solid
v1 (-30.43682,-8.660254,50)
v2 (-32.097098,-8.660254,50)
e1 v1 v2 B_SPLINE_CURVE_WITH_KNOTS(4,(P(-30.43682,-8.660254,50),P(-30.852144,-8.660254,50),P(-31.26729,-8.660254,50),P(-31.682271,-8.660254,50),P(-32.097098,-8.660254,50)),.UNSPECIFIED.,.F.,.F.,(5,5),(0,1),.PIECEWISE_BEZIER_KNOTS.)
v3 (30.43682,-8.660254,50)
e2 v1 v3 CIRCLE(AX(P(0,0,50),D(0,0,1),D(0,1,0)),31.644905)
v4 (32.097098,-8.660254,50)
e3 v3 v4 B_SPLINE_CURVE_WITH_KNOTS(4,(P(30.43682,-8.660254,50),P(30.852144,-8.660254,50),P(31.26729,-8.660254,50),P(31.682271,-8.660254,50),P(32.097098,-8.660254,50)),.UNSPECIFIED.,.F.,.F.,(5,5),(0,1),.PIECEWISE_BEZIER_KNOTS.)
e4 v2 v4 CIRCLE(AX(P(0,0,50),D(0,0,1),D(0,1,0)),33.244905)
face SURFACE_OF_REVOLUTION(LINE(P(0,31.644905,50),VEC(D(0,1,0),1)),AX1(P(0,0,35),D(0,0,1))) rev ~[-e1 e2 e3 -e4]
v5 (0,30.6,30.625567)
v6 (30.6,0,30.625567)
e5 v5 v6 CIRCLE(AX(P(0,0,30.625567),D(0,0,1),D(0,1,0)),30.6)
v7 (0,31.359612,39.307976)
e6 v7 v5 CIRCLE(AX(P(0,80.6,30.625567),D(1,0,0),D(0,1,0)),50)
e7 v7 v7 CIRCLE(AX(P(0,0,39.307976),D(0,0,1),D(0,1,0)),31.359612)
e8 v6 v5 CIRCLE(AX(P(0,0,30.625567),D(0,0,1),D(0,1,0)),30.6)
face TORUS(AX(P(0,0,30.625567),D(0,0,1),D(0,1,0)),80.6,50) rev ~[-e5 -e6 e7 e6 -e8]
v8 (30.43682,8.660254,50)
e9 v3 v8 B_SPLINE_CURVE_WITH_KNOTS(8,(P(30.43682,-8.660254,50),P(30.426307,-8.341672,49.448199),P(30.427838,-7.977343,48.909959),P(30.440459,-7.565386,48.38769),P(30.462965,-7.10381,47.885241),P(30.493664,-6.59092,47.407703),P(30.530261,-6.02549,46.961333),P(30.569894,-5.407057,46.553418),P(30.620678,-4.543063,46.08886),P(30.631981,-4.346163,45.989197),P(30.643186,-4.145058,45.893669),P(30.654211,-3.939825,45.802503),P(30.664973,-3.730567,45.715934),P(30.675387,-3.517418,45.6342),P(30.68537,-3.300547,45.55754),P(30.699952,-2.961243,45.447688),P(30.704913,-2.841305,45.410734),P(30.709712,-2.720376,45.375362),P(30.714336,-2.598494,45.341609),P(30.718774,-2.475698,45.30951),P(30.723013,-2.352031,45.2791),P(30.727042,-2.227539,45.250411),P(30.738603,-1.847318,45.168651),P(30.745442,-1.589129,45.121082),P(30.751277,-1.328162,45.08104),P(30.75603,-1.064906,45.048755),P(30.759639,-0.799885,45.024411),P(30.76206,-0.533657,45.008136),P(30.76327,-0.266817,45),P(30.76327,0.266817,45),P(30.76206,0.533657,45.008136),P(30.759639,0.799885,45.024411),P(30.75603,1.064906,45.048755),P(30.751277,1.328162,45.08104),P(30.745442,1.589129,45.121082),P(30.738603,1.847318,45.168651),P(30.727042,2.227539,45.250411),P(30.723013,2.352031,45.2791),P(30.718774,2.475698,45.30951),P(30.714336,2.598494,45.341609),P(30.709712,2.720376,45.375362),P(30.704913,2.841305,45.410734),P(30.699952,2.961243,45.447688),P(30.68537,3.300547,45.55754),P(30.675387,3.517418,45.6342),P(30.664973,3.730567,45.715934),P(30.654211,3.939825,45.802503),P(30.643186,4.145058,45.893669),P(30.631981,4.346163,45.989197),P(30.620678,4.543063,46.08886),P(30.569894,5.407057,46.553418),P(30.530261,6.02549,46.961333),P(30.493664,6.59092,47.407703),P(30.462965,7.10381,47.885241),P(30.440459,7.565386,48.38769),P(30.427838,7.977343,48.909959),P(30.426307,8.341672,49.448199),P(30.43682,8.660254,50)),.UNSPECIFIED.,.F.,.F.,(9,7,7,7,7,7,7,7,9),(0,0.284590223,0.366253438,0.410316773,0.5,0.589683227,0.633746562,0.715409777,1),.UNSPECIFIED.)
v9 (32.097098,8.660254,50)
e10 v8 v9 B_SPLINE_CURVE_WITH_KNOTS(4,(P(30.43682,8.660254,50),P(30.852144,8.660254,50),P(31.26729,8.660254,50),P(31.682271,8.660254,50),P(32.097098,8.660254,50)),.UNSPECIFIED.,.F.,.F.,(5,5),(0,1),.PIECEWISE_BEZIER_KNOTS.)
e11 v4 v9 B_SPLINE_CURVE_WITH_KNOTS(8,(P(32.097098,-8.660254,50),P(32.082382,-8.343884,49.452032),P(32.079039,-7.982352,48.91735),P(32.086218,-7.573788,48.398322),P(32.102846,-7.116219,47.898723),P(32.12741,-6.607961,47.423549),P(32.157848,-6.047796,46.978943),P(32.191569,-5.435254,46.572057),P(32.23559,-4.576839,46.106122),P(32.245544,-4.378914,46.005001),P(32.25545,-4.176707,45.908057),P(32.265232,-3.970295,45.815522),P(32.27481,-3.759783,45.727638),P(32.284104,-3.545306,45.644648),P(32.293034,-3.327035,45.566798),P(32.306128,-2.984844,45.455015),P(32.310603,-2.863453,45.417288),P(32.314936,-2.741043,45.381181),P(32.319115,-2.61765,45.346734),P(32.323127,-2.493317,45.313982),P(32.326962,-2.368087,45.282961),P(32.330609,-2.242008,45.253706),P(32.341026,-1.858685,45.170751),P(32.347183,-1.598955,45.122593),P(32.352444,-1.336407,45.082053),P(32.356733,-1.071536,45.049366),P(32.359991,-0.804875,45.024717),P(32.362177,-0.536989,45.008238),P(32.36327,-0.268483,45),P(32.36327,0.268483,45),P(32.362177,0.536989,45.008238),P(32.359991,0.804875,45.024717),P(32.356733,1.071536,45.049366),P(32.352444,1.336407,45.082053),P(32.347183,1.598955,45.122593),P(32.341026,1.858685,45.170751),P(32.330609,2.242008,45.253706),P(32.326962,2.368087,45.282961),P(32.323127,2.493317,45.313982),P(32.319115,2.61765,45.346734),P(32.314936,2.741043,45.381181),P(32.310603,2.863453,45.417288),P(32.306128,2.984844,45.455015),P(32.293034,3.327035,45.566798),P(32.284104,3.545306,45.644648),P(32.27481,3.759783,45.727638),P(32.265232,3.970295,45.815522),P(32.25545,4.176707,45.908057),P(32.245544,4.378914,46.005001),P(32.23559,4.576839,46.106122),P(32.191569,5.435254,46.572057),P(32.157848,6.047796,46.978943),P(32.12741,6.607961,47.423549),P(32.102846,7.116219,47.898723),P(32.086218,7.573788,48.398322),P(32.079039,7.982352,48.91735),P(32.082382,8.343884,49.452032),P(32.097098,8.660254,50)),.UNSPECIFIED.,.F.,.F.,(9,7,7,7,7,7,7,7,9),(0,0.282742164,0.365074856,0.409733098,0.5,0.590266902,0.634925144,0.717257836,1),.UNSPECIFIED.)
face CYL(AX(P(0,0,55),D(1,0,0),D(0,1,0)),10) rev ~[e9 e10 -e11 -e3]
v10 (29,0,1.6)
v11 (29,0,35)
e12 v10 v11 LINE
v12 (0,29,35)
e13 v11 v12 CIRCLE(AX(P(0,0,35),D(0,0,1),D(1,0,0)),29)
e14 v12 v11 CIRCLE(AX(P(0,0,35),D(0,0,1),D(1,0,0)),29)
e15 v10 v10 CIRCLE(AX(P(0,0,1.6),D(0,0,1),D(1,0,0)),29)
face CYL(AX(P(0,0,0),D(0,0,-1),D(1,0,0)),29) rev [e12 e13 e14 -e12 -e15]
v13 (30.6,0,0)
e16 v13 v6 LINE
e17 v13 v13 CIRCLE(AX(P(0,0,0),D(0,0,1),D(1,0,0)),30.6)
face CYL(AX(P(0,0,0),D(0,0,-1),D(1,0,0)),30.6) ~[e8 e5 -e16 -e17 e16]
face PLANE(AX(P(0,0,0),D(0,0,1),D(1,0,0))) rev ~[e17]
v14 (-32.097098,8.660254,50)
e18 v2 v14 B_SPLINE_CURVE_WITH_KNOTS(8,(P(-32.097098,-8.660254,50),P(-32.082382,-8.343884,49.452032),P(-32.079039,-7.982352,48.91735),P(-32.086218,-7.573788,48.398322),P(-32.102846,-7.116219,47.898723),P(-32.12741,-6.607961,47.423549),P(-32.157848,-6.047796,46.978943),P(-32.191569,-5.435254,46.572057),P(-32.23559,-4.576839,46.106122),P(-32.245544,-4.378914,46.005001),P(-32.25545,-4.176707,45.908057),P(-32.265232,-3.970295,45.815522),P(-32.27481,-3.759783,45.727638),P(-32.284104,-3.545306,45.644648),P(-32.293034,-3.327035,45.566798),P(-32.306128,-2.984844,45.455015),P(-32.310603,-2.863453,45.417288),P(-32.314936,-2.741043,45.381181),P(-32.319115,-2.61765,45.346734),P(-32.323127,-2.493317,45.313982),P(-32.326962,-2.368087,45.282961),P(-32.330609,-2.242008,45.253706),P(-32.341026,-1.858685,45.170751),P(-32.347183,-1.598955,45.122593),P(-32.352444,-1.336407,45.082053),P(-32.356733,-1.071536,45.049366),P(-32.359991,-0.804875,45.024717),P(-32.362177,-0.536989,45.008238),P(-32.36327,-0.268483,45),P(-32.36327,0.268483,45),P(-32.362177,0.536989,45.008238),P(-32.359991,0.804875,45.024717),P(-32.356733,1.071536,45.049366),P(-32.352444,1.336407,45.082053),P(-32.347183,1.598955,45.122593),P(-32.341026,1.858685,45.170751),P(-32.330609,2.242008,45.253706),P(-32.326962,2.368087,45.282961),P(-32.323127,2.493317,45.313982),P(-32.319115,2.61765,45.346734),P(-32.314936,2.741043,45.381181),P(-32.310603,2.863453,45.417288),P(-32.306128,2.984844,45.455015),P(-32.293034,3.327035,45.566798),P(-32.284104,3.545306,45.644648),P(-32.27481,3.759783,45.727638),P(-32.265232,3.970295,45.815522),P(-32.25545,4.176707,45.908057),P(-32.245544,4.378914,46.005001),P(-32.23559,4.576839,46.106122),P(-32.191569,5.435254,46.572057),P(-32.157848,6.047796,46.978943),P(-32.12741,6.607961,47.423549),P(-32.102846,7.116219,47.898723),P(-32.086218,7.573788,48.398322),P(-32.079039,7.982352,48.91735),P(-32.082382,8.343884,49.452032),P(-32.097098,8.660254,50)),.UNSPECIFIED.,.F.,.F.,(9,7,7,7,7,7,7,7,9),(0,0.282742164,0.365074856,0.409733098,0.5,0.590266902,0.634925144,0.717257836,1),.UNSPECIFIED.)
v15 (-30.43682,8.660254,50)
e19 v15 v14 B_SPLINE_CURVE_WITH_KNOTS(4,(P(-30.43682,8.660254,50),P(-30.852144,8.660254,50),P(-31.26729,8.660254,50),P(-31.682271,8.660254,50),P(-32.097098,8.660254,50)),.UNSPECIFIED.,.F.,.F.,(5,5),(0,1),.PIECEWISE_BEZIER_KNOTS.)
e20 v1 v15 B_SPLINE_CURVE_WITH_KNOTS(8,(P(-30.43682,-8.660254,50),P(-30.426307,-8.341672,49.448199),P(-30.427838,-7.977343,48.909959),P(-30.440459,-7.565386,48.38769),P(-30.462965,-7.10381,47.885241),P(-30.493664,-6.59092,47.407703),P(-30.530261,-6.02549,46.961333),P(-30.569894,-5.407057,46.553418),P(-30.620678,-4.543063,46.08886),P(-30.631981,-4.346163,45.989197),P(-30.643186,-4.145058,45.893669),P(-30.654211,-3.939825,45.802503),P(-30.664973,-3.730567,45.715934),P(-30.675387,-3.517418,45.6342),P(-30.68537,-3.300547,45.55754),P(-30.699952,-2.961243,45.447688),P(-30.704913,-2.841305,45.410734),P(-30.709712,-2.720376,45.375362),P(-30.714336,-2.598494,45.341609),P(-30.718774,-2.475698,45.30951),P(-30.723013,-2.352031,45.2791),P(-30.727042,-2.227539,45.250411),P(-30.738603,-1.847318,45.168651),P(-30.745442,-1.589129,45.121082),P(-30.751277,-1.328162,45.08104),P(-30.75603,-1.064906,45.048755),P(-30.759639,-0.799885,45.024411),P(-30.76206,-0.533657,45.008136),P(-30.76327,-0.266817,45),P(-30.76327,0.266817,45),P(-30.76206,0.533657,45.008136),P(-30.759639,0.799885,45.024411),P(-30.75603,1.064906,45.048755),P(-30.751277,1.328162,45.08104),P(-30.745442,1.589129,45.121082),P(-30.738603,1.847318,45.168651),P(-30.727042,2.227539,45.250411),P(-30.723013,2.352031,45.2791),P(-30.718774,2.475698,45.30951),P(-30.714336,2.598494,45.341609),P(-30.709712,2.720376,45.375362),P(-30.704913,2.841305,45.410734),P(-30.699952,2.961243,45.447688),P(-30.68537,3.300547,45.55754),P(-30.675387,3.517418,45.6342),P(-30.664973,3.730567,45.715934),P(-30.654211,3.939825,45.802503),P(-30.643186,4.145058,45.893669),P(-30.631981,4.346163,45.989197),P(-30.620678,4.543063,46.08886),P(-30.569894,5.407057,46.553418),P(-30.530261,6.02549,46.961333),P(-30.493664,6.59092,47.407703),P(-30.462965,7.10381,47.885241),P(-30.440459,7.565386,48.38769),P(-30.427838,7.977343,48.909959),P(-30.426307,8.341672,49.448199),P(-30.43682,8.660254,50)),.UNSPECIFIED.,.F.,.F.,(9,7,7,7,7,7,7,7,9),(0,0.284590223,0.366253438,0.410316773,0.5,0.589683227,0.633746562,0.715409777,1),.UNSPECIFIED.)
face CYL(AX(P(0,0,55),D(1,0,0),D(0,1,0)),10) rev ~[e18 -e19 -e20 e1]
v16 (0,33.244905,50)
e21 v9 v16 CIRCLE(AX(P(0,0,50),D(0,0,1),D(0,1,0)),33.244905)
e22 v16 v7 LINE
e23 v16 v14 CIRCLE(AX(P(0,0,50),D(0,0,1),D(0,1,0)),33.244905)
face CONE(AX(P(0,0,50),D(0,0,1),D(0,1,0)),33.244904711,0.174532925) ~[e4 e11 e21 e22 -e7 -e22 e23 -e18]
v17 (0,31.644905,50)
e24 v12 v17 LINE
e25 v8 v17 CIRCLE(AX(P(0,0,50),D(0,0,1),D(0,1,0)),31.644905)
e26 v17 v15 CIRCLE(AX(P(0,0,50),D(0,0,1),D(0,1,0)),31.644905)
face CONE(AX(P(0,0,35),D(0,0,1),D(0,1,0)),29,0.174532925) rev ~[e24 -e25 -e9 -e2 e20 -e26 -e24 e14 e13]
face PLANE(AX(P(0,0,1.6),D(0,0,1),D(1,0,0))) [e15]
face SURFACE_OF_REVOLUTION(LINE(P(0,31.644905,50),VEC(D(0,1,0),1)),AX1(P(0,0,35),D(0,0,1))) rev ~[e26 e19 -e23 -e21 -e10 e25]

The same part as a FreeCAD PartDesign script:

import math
import FreeCAD as App
import Part
import Sketcher
from FreeCAD import Vector
Q = App.Units.Quantity

doc = App.newDocument("Part")
body = doc.addObject("PartDesign::Body", "Body")

# Sketch on XY plane
sketch1 = body.newObject("Sketcher::SketchObject", "Sketch")
sketch1.AttachmentSupport = (doc.getObject("XY_Plane"), [""])
sketch1.MapMode = "FlatFace"
sketch1.addGeometry(Part.Circle(Vector(0, 0, 0), Vector(0, 0, 1), 29), False)
sketch1.addConstraint([
    Sketcher.Constraint("Coincident", 0, 3, -1, 1),
    Sketcher.Constraint("Diameter", 0, 58.0),
])
pad1 = body.newObject("PartDesign::Pad", "Pad")
pad1.Profile = sketch1
pad1.Length = 1.6

# Sketch on XY plane
sketch2 = body.newObject("Sketcher::SketchObject", "Sketch001")
sketch2.AttachmentSupport = (doc.getObject("XY_Plane"), [""])
sketch2.MapMode = "FlatFace"
sketch2.addGeometry([
    Part.Circle(Vector(0, 0, 0), Vector(0, 0, 1), 31),
    Part.Circle(Vector(0, 0, 0), Vector(0, 0, 1), 29),
], False)
sketch2.addConstraint([
    Sketcher.Constraint("Coincident", 0, 3, -1, 1),
    Sketcher.Constraint("Coincident", 1, 3, -1, 1),
    Sketcher.Constraint("Diameter", 1, 58.0),
    Sketcher.Constraint("Diameter", 0, 61.2),
])
pad2 = body.newObject("PartDesign::Pad", "Pad001")
pad2.Profile = sketch2
pad2.Length = 35

# Sketch on XZ plane
sketch3 = body.newObject("Sketcher::SketchObject", "Sketch002")
sketch3.AttachmentSupport = (doc.getObject("XZ_Plane"), [""])
sketch3.MapMode = "FlatFace"
sketch3.addGeometry([
    Part.LineSegment(Vector(-33.2, 50, 0), Vector(-31.4, 39.3, 0)),  # 0
    Part.ArcOfCircle(Part.Circle(Vector(-80.6, 30.6, 0), Vector(0, 0, 1), 50), math.radians(0), math.radians(10)),  # 1
    Part.LineSegment(Vector(-30.6, 30.6, 0), Vector(-30.6, 35, 0)),  # 2
    Part.LineSegment(Vector(-30.6, 35, 0), Vector(-29, 35, 0)),  # 3
    Part.LineSegment(Vector(-29, 35, 0), Vector(-31.6, 50, 0)),  # 4
    Part.LineSegment(Vector(-31.6, 50, 0), Vector(-33.2, 50, 0)),  # 5
], False)
sketch3.addConstraint([
    Sketcher.Constraint("Tangent", 0, 2, 1, 2),
    Sketcher.Constraint("Tangent", 1, 1, 2, 1),
    Sketcher.Constraint("Coincident", 2, 2, 3, 1),
    Sketcher.Constraint("Coincident", 3, 2, 4, 1),
    Sketcher.Constraint("Coincident", 4, 2, 5, 1),
    Sketcher.Constraint("Coincident", 5, 2, 0, 1),
    Sketcher.Constraint("Vertical", 2),
    Sketcher.Constraint("Horizontal", 3),
    Sketcher.Constraint("Horizontal", 5),
    Sketcher.Constraint("Parallel", 0, 4),
    Sketcher.Constraint("Equal", 3, 5),
    Sketcher.Constraint("Radius", 1, 50.0),
    Sketcher.Constraint("Angle", 0, Q("-80 deg")),
    Sketcher.Constraint("DistanceX", 3, 1, 3, 2, 1.6),
    Sketcher.Constraint("DistanceY", -1, 1, 2, 2, 35.0),
    Sketcher.Constraint("DistanceX", 3, 2, -1, 1, 29.0),
    Sketcher.Constraint("DistanceY", -1, 1, 4, 2, 50.0),
])

# Sketch on XY plane
sketch4 = body.newObject("Sketcher::SketchObject", "Sketch003")
sketch4.AttachmentSupport = (doc.getObject("XY_Plane"), [""])
sketch4.MapMode = "FlatFace"
sketch4.AttachmentOffset = App.Placement(Vector(0, 0, 35), App.Rotation())
sketch4.addGeometry(Part.Circle(Vector(0, 0, 0), Vector(0, 0, 1), 31), False)
sketch4.addConstraint([
    Sketcher.Constraint("Coincident", 0, 3, -1, 1),
    Sketcher.Constraint("Diameter", 0, 61.2),
])
doc.recompute()

additivepipe = body.newObject("PartDesign::AdditivePipe", "AdditivePipe")
additivepipe.Profile = sketch3
additivepipe.Spine = (sketch4, ["Edge1"])

# Sketch on YZ plane
sketch5 = body.newObject("Sketcher::SketchObject", "Sketch004")
sketch5.AttachmentSupport = (doc.getObject("YZ_Plane"), [""])
sketch5.MapMode = "FlatFace"
sketch5.addGeometry(Part.Circle(Vector(0, 55, 0), Vector(0, 0, 1), 10), False)
sketch5.addConstraint([
    Sketcher.Constraint("PointOnObject", 0, 3, -2),
    Sketcher.Constraint("Diameter", 0, 20.0),
    Sketcher.Constraint("DistanceY", -1, 1, 0, 3, 55.0),
])
pocket1 = body.newObject("PartDesign::Pocket", "Pocket")
pocket1.Profile = sketch5
pocket1.Length = 80
pocket1.Midplane = True

doc.recompute()
